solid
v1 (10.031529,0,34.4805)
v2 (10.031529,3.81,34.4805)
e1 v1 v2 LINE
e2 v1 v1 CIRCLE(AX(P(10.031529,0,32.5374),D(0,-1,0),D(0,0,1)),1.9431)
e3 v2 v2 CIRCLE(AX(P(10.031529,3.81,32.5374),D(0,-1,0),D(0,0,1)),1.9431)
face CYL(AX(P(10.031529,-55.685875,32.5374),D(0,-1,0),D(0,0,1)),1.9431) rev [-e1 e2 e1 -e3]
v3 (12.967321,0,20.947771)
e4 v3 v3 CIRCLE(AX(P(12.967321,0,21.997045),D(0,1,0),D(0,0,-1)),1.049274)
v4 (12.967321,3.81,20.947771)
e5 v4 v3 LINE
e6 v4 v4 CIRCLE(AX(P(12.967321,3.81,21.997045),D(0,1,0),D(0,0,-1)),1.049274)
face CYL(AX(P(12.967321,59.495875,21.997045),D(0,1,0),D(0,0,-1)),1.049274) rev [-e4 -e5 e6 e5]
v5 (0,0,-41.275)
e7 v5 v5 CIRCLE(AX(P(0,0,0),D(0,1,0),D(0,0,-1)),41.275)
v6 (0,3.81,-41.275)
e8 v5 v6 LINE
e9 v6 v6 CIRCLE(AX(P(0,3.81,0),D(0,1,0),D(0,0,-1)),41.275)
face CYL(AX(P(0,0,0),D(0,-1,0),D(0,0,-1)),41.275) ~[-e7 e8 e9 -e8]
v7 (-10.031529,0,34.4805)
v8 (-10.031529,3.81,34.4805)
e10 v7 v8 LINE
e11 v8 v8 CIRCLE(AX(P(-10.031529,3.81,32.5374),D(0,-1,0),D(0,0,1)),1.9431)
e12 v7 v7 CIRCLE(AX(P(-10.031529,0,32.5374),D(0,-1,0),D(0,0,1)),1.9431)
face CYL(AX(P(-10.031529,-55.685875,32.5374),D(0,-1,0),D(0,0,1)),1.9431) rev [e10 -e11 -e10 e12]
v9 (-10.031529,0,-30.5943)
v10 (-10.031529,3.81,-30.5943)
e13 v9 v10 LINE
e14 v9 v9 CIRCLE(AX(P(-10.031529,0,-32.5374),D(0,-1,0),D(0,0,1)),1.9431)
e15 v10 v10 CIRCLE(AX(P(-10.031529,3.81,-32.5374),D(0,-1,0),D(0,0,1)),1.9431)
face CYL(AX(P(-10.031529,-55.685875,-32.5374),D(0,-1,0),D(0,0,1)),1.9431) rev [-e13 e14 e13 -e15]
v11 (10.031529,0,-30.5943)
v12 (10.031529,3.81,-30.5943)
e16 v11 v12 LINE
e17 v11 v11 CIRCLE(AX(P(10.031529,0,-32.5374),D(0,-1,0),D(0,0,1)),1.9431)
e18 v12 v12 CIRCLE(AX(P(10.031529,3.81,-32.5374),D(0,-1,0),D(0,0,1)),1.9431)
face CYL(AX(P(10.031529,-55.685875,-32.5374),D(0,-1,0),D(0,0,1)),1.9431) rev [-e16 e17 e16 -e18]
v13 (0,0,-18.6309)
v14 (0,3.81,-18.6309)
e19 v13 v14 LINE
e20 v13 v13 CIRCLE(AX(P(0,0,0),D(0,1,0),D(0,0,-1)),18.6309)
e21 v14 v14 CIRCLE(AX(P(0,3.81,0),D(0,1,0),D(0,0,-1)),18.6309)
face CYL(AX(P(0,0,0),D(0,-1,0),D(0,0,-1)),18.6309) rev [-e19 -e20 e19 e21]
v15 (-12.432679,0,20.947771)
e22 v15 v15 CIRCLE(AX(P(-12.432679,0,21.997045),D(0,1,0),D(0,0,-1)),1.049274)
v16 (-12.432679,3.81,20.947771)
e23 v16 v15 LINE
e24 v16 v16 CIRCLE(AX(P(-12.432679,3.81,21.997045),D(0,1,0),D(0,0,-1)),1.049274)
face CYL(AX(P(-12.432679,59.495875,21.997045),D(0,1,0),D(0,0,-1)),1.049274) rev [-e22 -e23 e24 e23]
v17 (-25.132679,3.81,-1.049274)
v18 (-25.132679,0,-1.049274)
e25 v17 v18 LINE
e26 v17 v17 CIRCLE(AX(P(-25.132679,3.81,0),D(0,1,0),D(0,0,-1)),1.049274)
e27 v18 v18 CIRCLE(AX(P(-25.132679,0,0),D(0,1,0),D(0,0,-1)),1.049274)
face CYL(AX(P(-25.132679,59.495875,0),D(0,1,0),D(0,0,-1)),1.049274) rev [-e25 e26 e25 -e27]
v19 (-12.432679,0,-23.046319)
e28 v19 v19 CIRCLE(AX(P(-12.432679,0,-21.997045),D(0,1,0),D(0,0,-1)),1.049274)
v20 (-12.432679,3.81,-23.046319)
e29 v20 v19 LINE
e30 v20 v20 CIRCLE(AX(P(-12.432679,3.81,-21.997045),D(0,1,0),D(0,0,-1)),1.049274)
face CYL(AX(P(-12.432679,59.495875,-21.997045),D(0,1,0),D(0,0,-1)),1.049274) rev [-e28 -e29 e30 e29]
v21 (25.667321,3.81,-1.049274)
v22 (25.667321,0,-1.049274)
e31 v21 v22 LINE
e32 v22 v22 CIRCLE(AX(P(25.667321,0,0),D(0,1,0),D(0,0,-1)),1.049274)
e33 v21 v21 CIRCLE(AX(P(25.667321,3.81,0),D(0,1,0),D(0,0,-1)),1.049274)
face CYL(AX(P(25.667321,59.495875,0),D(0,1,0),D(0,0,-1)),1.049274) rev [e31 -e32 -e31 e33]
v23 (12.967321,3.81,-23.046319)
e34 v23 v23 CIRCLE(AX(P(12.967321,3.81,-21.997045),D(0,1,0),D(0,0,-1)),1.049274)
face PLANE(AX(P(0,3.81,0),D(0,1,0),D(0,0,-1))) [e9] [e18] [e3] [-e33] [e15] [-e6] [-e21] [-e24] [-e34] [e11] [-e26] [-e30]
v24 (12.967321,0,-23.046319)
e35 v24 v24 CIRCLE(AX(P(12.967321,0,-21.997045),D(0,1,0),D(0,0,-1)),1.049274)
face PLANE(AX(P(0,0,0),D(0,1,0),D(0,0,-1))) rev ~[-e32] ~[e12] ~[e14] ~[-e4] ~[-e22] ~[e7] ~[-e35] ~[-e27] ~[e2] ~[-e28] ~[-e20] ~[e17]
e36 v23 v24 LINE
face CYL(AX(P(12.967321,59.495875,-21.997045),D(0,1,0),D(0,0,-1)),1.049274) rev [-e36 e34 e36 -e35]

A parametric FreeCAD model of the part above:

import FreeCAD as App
import Part
import Sketcher
from FreeCAD import Vector
Q = App.Units.Quantity

doc = App.newDocument("Part")
body = doc.addObject("PartDesign::Body", "Body")

# Sketch on XZ plane
sketch1 = doc.addObject("Sketcher::SketchObject", "Sketch")
body.addObject(sketch1)
sketch1.AttachmentSupport = (doc.XZ_Plane, [""])
sketch1.MapMode = "FlatFace"
sketch1.addGeometry([
    Part.Circle(Vector(0, 0, 0), Vector(0, 0, 1), 41),
    Part.Circle(Vector(0, 0, 0), Vector(0, 0, 1), 19),
], False)
sketch1.addConstraint([
    Sketcher.Constraint("Coincident", 0, 3, -1, 1),
    Sketcher.Constraint("Coincident", 1, 3, -1, 1),
    Sketcher.Constraint("Diameter", 0, Q("3.25 in")),
    Sketcher.Constraint("Diameter", 1, Q("1.467 in")),
])
pad1 = doc.addObject("PartDesign::Pad", "Pad")
body.addObject(pad1)
pad1.Profile = sketch1
pad1.Length = Q("0.15 in")
pad1.Reversed = True

# Sketch on XZ plane
sketch2 = doc.addObject("Sketcher::SketchObject", "Sketch001")
body.addObject(sketch2)
sketch2.AttachmentSupport = (doc.XZ_Plane, [""])
sketch2.MapMode = "FlatFace"
sketch2.addGeometry([
    Part.Circle(Vector(13, 22, 0), Vector(0, 0, 1), 1),  # 0
    Part.Circle(Vector(-12.4, 22, 0), Vector(0, 0, 1), 1),  # 1
    Part.Circle(Vector(-25.1, 0, 0), Vector(0, 0, 1), 1),  # 2
    Part.Circle(Vector(-12.4, -22, 0), Vector(0, 0, 1), 1),  # 3
    Part.Circle(Vector(13, -22, 0), Vector(0, 0, 1), 1),  # 4
    Part.Circle(Vector(25.7, 0, 0), Vector(0, 0, 1), 1),  # 5
], False)
sketch2.addConstraint([
    Sketcher.Constraint("Equal", 0, 1),
    Sketcher.Constraint("Equal", 1, 2),
    Sketcher.Constraint("Equal", 2, 3),
    Sketcher.Constraint("Equal", 3, 4),
    Sketcher.Constraint("Equal", 4, 5),
    Sketcher.Constraint("Symmetric", 1, 3, 3, 3, -1),
    Sketcher.Constraint("Symmetric", 0, 3, 4, 3, -1),
    Sketcher.Constraint("PointOnObject", 2, 3, -1),
    Sketcher.Constraint("PointOnObject", 5, 3, -1),
    Sketcher.Constraint("Horizontal", 0, 3, 1, 3),
    Sketcher.Constraint("DistanceX", 1, 3, 0, 3, Q("1 in")),
    Sketcher.Constraint("DistanceX", 2, 3, 5, 3, Q("2 in")),
    Sketcher.Constraint("DistanceX", 2, 3, 1, 3, Q("0.5 in")),
    Sketcher.Constraint("Diameter", 0, 2.098548),
    Sketcher.Constraint("DistanceX", -1, 1, 0, 3, 12.967321),
    Sketcher.Constraint("DistanceY", 3, 3, 1, 3, 43.994091),
])
pocket1 = doc.addObject("PartDesign::Pocket", "Pocket")
body.addObject(pocket1)
pocket1.Profile = sketch2
pocket1.Type = "ThroughAll"
pocket1.Midplane = True

# Sketch on XZ plane
sketch3 = doc.addObject("Sketcher::SketchObject", "Sketch002")
body.addObject(sketch3)
sketch3.AttachmentSupport = (doc.XZ_Plane, [""])
sketch3.MapMode = "FlatFace"
sketch3.AttachmentOffset = App.Placement(Vector(0, 0, -0.15 * 25.4), App.Rotation())
sketch3.addGeometry([
    Part.Circle(Vector(-10, -32.5, 0), Vector(0, 0, 1), 1.9),
    Part.Circle(Vector(-10, 32.5, 0), Vector(0, 0, 1), 1.9),
    Part.Circle(Vector(10, 32.5, 0), Vector(0, 0, 1), 1.9),
    Part.Circle(Vector(10, -32.5, 0), Vector(0, 0, 1), 1.9),
], False)
sketch3.addConstraint([
    Sketcher.Constraint("Equal", 0, 1),
    Sketcher.Constraint("Equal", 1, 2),
    Sketcher.Constraint("Equal", 2, 3),
    Sketcher.Constraint("Symmetric", 0, 3, 2, 3, -1, 1),
    Sketcher.Constraint("Symmetric", 1, 3, 3, 3, -1, 1),
    Sketcher.Constraint("Symmetric", 1, 3, 2, 3, -2),
    Sketcher.Constraint("Diameter", 0, Q("0.153 in")),
    Sketcher.Constraint("DistanceY", 0, 3, -1, 1, Q("1.281 in")),
    Sketcher.Constraint("DistanceX", 0, 3, -1, 1, 10.031529),
])
pocket2 = doc.addObject("PartDesign::Pocket", "Pocket001")
body.addObject(pocket2)
pocket2.Profile = sketch3
pocket2.Type = "ThroughAll"
pocket2.Midplane = True

doc.recompute()
